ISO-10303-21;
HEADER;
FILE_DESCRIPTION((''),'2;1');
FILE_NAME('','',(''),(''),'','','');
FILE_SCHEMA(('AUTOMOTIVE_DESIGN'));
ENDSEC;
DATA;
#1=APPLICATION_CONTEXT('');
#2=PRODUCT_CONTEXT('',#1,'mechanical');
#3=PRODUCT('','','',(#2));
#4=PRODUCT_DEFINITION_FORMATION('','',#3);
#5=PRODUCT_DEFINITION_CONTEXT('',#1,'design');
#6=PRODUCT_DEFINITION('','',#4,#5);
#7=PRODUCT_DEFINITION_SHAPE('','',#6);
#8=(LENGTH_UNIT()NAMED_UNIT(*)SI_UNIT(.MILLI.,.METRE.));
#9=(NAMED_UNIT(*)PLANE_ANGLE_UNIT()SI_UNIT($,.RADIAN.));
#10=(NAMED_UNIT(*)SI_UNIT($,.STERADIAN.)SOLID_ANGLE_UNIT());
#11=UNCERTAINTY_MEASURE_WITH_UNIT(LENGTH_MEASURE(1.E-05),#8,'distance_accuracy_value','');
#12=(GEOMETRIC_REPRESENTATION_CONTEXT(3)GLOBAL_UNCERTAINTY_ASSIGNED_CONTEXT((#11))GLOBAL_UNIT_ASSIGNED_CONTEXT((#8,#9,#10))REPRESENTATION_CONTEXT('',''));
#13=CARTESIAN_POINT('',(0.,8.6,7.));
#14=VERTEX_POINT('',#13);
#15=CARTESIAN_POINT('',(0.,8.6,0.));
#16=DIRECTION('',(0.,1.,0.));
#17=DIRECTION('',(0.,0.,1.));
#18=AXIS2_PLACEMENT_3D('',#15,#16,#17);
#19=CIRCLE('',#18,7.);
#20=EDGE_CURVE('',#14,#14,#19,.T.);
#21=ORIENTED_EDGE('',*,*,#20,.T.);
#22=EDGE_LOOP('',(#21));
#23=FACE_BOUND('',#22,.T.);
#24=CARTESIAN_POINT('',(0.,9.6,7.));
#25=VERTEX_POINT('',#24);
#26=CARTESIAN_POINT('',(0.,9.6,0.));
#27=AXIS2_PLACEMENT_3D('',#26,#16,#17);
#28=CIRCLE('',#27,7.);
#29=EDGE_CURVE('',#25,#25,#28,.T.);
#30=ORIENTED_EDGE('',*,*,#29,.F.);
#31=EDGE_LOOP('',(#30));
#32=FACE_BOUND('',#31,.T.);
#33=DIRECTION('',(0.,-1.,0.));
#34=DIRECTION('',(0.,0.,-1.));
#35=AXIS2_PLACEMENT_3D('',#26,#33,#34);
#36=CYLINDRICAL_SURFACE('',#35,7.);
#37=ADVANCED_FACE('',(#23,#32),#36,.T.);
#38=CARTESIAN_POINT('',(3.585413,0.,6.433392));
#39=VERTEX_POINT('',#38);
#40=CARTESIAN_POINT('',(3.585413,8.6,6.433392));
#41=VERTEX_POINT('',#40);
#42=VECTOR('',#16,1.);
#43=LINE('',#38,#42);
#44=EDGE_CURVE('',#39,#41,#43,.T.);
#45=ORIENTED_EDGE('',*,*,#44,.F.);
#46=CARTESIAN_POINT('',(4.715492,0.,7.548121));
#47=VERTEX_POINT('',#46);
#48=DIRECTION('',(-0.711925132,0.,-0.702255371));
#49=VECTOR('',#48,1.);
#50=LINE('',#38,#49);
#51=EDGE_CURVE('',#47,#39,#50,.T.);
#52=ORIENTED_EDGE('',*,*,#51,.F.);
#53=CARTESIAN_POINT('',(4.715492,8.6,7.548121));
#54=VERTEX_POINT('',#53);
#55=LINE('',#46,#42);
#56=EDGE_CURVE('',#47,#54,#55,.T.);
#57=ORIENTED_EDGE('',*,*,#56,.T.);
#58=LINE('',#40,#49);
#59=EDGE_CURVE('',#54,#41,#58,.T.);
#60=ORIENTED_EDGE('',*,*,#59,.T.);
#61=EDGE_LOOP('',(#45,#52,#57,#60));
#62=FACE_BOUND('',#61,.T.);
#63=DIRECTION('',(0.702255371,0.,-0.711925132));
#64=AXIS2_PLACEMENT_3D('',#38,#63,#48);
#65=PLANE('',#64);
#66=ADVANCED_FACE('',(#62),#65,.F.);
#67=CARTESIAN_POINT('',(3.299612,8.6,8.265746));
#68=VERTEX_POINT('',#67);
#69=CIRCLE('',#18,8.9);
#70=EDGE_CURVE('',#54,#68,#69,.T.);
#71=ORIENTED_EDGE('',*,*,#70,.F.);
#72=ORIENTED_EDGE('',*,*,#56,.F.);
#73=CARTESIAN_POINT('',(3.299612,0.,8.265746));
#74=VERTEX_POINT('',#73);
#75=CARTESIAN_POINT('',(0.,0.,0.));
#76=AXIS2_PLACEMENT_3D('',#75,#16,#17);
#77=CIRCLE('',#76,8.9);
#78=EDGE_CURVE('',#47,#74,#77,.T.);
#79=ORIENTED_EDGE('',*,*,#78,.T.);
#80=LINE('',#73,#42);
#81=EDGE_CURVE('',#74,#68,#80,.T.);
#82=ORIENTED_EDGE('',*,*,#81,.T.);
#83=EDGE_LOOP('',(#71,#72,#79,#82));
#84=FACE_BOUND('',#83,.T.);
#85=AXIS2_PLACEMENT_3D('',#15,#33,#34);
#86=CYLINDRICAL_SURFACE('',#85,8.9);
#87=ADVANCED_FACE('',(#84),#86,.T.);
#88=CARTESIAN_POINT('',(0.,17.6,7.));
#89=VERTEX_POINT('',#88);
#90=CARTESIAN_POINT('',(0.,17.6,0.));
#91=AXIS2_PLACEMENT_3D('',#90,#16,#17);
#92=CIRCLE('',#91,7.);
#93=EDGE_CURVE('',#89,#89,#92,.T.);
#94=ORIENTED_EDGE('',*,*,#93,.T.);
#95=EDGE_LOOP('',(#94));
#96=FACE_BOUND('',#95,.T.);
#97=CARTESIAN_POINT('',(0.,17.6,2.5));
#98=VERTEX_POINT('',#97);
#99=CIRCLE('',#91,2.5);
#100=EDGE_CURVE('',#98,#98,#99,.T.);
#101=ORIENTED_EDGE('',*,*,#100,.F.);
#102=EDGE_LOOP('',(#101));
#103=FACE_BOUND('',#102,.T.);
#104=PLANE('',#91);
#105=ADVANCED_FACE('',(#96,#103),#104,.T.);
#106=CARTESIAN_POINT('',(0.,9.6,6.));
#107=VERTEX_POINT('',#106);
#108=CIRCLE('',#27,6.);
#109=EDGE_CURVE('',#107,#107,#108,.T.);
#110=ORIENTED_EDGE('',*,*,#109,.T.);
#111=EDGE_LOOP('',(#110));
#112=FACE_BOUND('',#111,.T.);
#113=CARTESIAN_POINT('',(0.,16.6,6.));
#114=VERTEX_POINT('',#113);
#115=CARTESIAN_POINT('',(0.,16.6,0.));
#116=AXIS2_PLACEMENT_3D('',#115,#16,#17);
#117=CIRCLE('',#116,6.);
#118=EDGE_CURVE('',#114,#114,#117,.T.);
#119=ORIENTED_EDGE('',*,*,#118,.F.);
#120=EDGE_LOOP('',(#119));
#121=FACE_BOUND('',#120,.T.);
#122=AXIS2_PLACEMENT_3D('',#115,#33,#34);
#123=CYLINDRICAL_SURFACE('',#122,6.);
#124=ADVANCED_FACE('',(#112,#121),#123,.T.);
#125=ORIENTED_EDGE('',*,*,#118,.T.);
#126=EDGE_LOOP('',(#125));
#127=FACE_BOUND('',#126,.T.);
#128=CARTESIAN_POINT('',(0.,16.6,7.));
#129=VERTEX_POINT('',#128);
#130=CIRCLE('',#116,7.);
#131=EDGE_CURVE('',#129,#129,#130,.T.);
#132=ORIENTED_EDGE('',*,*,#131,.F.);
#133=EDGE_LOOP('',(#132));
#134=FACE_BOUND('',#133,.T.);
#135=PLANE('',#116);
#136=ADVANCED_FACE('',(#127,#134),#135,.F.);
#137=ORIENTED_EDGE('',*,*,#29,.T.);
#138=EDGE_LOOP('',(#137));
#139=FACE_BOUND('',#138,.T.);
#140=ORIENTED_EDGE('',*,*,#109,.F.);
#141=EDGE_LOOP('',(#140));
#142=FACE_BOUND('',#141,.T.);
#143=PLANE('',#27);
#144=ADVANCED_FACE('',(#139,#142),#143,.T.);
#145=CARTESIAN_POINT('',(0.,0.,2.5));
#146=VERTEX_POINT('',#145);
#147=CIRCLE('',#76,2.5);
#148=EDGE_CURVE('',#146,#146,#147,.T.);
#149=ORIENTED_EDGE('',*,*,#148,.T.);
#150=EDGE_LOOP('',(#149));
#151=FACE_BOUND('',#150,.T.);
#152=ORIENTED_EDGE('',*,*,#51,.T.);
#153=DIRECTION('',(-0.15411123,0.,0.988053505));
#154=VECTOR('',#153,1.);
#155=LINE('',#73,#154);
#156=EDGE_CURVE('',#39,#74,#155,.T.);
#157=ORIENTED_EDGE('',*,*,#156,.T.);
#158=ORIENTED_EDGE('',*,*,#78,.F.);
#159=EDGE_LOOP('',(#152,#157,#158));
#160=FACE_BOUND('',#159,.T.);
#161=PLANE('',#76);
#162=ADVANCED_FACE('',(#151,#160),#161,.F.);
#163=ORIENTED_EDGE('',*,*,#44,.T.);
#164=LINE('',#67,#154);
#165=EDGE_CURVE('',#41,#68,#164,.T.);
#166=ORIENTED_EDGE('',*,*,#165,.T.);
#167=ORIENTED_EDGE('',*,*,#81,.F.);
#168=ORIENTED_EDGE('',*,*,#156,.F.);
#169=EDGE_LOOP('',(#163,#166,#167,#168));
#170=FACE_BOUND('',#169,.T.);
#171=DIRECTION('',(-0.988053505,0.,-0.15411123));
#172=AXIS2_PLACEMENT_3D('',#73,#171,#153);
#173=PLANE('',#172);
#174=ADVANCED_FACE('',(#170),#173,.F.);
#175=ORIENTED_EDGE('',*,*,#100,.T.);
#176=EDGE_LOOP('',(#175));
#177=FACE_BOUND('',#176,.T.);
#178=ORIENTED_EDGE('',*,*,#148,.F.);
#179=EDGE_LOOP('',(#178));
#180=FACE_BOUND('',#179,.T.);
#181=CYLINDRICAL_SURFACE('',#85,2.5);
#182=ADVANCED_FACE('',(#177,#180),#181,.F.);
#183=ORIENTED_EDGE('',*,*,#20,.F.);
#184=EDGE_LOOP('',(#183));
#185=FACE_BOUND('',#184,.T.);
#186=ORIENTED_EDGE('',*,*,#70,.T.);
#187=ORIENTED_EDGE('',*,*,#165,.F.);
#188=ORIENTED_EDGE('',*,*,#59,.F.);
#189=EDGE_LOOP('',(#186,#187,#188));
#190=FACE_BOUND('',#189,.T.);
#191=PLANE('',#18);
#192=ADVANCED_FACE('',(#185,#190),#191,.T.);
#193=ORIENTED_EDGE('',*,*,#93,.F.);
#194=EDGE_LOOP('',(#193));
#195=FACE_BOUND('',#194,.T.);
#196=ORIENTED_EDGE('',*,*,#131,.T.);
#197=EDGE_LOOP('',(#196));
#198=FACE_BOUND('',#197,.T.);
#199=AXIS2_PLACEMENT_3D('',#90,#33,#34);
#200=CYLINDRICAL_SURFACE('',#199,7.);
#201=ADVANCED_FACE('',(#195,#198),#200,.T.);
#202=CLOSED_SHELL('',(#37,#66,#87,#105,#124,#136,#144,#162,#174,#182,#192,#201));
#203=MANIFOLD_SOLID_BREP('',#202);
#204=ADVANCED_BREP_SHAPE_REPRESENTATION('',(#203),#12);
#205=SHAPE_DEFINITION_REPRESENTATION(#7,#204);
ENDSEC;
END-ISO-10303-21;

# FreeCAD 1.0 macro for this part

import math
import FreeCAD as App
import Part
import Sketcher

V = App.Vector
Q = App.Units.Quantity

doc = App.newDocument("Part")
body = doc.addObject("PartDesign::Body", "Body")

# Sketch on XZ plane
sketch1 = body.newObject("Sketcher::SketchObject", "Sketch")
sketch1.AttachmentSupport = (doc.getObject("XZ_Plane"), [""])
sketch1.MapMode = "FlatFace"
sketch1.addGeometry(Part.Circle(V(0, 0, 0), V(0, 0, 1), 8.9), False)
sketch1.addGeometry(Part.Circle(V(0, 0, 0), V(0, 0, 1), 2.5), False)
sketch1.addConstraint(Sketcher.Constraint("Coincident", 0, 3, -1, 1))
sketch1.addConstraint(Sketcher.Constraint("Coincident", 1, 3, -1, 1))
sketch1.addConstraint(Sketcher.Constraint("Diameter", 1, Q("5 mm")))
sketch1.addConstraint(Sketcher.Constraint("Diameter", 0, Q("17.8 mm")))
pad1 = body.newObject("PartDesign::Pad", "Pad")
pad1.Profile = sketch1
pad1.Length = 8.6
pad1.Reversed = True

# Sketch on XZ plane
sketch2 = body.newObject("Sketcher::SketchObject", "Sketch001")
sketch2.AttachmentSupport = (doc.getObject("XZ_Plane"), [""])
sketch2.MapMode = "FlatFace"
sketch2.AttachmentOffset = App.Placement(V(0, 0, -8.6), App.Rotation())
sketch2.addGeometry(Part.Circle(V(0, 0, 0), V(0, 0, 1), 7), False)
sketch2.addGeometry(Part.Circle(V(0, 0, 0), V(0, 0, 1), 2.5), False)
sketch2.addConstraint(Sketcher.Constraint("Coincident", 0, 3, -1, 1))
sketch2.addConstraint(Sketcher.Constraint("Coincident", 1, 3, -1, 1))
sketch2.addConstraint(Sketcher.Constraint("Diameter", 0, Q("14 mm")))
sketch2.addConstraint(Sketcher.Constraint("Diameter", 1, Q("5 mm")))
pad2 = body.newObject("PartDesign::Pad", "Pad001")
pad2.Profile = sketch2
pad2.Length = 1
pad2.Reversed = True

# Sketch on XZ plane
sketch3 = body.newObject("Sketcher::SketchObject", "Sketch002")
sketch3.AttachmentSupport = (doc.getObject("XZ_Plane"), [""])
sketch3.MapMode = "FlatFace"
sketch3.AttachmentOffset = App.Placement(V(0, 0, -9.6), App.Rotation())
sketch3.addGeometry(Part.Circle(V(0, 0, 0), V(0, 0, 1), 6), False)
sketch3.addGeometry(Part.Circle(V(0, 0, 0), V(0, 0, 1), 2.5), False)
sketch3.addConstraint(Sketcher.Constraint("Coincident", 0, 3, -1, 1))
sketch3.addConstraint(Sketcher.Constraint("Coincident", 1, 3, -1, 1))
sketch3.addConstraint(Sketcher.Constraint("Diameter", 0, Q("12 mm")))
sketch3.addConstraint(Sketcher.Constraint("Diameter", 1, Q("5 mm")))
pad3 = body.newObject("PartDesign::Pad", "Pad002")
pad3.Profile = sketch3
pad3.Length = 7
pad3.Reversed = True

# Sketch on XZ plane
sketch4 = body.newObject("Sketcher::SketchObject", "Sketch003")
sketch4.AttachmentSupport = (doc.getObject("XZ_Plane"), [""])
sketch4.MapMode = "FlatFace"
sketch4.AttachmentOffset = App.Placement(V(0, 0, -16.6), App.Rotation())
sketch4.addGeometry(Part.Circle(V(0, 0, 0), V(0, 0, 1), 7), False)
sketch4.addGeometry(Part.Circle(V(0, 0, 0), V(0, 0, 1), 2.5), False)
sketch4.addConstraint(Sketcher.Constraint("Coincident", 0, 3, -1, 1))
sketch4.addConstraint(Sketcher.Constraint("Coincident", 1, 3, -1, 1))
sketch4.addConstraint(Sketcher.Constraint("Diameter", 0, Q("14 mm")))
sketch4.addConstraint(Sketcher.Constraint("Diameter", 1, Q("5 mm")))
pad4 = body.newObject("PartDesign::Pad", "Pad003")
pad4.Profile = sketch4
pad4.Length = 1
pad4.Reversed = True

# Sketch on XZ plane
sketch5 = body.newObject("Sketcher::SketchObject", "Sketch004")
sketch5.AttachmentSupport = (doc.getObject("XZ_Plane"), [""])
sketch5.MapMode = "FlatFace"
sketch5.AttachmentOffset = App.Placement(V(0, 0, -8.6), App.Rotation())
sketch5.addGeometry(Part.LineSegment(V(3.6, 6.4, 0), V(3.3, 8.3, 0)), False)
sketch5.addGeometry(Part.ArcOfCircle(Part.Circle(V(0, 0, 0), V(0, 0, 1), 8.9), math.radians(58.01), math.radians(68.24)), False)
sketch5.addGeometry(Part.LineSegment(V(4.7, 7.5, 0), V(3.6, 6.4, 0)), False)
sketch5.addConstraint(Sketcher.Constraint("Coincident", 0, 2, 1, 2))
sketch5.addConstraint(Sketcher.Constraint("Coincident", 1, 1, 2, 1))
sketch5.addConstraint(Sketcher.Constraint("Coincident", 2, 2, 0, 1))
sketch5.addConstraint(Sketcher.Constraint("Coincident", 1, 3, -1, 1))
sketch5.addConstraint(Sketcher.Constraint("Radius", 1, Q("8.9 mm")))
sketch5.addConstraint(Sketcher.Constraint("DistanceX", 0, 2, 2, 2, Q("0.285801 mm")))
sketch5.addConstraint(Sketcher.Constraint("Distance", 0, Q("1.854509 mm")))
sketch5.addConstraint(Sketcher.Constraint("DistanceX", -1, 1, 1, 1, Q("4.715492 mm")))
sketch5.addConstraint(Sketcher.Constraint("DistanceY", -1, 1, 2, 2, Q("6.433392 mm")))
pocket1 = body.newObject("PartDesign::Pocket", "Pocket")
pocket1.Profile = sketch5
pocket1.Type = "ThroughAll"
pocket1.Reversed = True

doc.recompute()
